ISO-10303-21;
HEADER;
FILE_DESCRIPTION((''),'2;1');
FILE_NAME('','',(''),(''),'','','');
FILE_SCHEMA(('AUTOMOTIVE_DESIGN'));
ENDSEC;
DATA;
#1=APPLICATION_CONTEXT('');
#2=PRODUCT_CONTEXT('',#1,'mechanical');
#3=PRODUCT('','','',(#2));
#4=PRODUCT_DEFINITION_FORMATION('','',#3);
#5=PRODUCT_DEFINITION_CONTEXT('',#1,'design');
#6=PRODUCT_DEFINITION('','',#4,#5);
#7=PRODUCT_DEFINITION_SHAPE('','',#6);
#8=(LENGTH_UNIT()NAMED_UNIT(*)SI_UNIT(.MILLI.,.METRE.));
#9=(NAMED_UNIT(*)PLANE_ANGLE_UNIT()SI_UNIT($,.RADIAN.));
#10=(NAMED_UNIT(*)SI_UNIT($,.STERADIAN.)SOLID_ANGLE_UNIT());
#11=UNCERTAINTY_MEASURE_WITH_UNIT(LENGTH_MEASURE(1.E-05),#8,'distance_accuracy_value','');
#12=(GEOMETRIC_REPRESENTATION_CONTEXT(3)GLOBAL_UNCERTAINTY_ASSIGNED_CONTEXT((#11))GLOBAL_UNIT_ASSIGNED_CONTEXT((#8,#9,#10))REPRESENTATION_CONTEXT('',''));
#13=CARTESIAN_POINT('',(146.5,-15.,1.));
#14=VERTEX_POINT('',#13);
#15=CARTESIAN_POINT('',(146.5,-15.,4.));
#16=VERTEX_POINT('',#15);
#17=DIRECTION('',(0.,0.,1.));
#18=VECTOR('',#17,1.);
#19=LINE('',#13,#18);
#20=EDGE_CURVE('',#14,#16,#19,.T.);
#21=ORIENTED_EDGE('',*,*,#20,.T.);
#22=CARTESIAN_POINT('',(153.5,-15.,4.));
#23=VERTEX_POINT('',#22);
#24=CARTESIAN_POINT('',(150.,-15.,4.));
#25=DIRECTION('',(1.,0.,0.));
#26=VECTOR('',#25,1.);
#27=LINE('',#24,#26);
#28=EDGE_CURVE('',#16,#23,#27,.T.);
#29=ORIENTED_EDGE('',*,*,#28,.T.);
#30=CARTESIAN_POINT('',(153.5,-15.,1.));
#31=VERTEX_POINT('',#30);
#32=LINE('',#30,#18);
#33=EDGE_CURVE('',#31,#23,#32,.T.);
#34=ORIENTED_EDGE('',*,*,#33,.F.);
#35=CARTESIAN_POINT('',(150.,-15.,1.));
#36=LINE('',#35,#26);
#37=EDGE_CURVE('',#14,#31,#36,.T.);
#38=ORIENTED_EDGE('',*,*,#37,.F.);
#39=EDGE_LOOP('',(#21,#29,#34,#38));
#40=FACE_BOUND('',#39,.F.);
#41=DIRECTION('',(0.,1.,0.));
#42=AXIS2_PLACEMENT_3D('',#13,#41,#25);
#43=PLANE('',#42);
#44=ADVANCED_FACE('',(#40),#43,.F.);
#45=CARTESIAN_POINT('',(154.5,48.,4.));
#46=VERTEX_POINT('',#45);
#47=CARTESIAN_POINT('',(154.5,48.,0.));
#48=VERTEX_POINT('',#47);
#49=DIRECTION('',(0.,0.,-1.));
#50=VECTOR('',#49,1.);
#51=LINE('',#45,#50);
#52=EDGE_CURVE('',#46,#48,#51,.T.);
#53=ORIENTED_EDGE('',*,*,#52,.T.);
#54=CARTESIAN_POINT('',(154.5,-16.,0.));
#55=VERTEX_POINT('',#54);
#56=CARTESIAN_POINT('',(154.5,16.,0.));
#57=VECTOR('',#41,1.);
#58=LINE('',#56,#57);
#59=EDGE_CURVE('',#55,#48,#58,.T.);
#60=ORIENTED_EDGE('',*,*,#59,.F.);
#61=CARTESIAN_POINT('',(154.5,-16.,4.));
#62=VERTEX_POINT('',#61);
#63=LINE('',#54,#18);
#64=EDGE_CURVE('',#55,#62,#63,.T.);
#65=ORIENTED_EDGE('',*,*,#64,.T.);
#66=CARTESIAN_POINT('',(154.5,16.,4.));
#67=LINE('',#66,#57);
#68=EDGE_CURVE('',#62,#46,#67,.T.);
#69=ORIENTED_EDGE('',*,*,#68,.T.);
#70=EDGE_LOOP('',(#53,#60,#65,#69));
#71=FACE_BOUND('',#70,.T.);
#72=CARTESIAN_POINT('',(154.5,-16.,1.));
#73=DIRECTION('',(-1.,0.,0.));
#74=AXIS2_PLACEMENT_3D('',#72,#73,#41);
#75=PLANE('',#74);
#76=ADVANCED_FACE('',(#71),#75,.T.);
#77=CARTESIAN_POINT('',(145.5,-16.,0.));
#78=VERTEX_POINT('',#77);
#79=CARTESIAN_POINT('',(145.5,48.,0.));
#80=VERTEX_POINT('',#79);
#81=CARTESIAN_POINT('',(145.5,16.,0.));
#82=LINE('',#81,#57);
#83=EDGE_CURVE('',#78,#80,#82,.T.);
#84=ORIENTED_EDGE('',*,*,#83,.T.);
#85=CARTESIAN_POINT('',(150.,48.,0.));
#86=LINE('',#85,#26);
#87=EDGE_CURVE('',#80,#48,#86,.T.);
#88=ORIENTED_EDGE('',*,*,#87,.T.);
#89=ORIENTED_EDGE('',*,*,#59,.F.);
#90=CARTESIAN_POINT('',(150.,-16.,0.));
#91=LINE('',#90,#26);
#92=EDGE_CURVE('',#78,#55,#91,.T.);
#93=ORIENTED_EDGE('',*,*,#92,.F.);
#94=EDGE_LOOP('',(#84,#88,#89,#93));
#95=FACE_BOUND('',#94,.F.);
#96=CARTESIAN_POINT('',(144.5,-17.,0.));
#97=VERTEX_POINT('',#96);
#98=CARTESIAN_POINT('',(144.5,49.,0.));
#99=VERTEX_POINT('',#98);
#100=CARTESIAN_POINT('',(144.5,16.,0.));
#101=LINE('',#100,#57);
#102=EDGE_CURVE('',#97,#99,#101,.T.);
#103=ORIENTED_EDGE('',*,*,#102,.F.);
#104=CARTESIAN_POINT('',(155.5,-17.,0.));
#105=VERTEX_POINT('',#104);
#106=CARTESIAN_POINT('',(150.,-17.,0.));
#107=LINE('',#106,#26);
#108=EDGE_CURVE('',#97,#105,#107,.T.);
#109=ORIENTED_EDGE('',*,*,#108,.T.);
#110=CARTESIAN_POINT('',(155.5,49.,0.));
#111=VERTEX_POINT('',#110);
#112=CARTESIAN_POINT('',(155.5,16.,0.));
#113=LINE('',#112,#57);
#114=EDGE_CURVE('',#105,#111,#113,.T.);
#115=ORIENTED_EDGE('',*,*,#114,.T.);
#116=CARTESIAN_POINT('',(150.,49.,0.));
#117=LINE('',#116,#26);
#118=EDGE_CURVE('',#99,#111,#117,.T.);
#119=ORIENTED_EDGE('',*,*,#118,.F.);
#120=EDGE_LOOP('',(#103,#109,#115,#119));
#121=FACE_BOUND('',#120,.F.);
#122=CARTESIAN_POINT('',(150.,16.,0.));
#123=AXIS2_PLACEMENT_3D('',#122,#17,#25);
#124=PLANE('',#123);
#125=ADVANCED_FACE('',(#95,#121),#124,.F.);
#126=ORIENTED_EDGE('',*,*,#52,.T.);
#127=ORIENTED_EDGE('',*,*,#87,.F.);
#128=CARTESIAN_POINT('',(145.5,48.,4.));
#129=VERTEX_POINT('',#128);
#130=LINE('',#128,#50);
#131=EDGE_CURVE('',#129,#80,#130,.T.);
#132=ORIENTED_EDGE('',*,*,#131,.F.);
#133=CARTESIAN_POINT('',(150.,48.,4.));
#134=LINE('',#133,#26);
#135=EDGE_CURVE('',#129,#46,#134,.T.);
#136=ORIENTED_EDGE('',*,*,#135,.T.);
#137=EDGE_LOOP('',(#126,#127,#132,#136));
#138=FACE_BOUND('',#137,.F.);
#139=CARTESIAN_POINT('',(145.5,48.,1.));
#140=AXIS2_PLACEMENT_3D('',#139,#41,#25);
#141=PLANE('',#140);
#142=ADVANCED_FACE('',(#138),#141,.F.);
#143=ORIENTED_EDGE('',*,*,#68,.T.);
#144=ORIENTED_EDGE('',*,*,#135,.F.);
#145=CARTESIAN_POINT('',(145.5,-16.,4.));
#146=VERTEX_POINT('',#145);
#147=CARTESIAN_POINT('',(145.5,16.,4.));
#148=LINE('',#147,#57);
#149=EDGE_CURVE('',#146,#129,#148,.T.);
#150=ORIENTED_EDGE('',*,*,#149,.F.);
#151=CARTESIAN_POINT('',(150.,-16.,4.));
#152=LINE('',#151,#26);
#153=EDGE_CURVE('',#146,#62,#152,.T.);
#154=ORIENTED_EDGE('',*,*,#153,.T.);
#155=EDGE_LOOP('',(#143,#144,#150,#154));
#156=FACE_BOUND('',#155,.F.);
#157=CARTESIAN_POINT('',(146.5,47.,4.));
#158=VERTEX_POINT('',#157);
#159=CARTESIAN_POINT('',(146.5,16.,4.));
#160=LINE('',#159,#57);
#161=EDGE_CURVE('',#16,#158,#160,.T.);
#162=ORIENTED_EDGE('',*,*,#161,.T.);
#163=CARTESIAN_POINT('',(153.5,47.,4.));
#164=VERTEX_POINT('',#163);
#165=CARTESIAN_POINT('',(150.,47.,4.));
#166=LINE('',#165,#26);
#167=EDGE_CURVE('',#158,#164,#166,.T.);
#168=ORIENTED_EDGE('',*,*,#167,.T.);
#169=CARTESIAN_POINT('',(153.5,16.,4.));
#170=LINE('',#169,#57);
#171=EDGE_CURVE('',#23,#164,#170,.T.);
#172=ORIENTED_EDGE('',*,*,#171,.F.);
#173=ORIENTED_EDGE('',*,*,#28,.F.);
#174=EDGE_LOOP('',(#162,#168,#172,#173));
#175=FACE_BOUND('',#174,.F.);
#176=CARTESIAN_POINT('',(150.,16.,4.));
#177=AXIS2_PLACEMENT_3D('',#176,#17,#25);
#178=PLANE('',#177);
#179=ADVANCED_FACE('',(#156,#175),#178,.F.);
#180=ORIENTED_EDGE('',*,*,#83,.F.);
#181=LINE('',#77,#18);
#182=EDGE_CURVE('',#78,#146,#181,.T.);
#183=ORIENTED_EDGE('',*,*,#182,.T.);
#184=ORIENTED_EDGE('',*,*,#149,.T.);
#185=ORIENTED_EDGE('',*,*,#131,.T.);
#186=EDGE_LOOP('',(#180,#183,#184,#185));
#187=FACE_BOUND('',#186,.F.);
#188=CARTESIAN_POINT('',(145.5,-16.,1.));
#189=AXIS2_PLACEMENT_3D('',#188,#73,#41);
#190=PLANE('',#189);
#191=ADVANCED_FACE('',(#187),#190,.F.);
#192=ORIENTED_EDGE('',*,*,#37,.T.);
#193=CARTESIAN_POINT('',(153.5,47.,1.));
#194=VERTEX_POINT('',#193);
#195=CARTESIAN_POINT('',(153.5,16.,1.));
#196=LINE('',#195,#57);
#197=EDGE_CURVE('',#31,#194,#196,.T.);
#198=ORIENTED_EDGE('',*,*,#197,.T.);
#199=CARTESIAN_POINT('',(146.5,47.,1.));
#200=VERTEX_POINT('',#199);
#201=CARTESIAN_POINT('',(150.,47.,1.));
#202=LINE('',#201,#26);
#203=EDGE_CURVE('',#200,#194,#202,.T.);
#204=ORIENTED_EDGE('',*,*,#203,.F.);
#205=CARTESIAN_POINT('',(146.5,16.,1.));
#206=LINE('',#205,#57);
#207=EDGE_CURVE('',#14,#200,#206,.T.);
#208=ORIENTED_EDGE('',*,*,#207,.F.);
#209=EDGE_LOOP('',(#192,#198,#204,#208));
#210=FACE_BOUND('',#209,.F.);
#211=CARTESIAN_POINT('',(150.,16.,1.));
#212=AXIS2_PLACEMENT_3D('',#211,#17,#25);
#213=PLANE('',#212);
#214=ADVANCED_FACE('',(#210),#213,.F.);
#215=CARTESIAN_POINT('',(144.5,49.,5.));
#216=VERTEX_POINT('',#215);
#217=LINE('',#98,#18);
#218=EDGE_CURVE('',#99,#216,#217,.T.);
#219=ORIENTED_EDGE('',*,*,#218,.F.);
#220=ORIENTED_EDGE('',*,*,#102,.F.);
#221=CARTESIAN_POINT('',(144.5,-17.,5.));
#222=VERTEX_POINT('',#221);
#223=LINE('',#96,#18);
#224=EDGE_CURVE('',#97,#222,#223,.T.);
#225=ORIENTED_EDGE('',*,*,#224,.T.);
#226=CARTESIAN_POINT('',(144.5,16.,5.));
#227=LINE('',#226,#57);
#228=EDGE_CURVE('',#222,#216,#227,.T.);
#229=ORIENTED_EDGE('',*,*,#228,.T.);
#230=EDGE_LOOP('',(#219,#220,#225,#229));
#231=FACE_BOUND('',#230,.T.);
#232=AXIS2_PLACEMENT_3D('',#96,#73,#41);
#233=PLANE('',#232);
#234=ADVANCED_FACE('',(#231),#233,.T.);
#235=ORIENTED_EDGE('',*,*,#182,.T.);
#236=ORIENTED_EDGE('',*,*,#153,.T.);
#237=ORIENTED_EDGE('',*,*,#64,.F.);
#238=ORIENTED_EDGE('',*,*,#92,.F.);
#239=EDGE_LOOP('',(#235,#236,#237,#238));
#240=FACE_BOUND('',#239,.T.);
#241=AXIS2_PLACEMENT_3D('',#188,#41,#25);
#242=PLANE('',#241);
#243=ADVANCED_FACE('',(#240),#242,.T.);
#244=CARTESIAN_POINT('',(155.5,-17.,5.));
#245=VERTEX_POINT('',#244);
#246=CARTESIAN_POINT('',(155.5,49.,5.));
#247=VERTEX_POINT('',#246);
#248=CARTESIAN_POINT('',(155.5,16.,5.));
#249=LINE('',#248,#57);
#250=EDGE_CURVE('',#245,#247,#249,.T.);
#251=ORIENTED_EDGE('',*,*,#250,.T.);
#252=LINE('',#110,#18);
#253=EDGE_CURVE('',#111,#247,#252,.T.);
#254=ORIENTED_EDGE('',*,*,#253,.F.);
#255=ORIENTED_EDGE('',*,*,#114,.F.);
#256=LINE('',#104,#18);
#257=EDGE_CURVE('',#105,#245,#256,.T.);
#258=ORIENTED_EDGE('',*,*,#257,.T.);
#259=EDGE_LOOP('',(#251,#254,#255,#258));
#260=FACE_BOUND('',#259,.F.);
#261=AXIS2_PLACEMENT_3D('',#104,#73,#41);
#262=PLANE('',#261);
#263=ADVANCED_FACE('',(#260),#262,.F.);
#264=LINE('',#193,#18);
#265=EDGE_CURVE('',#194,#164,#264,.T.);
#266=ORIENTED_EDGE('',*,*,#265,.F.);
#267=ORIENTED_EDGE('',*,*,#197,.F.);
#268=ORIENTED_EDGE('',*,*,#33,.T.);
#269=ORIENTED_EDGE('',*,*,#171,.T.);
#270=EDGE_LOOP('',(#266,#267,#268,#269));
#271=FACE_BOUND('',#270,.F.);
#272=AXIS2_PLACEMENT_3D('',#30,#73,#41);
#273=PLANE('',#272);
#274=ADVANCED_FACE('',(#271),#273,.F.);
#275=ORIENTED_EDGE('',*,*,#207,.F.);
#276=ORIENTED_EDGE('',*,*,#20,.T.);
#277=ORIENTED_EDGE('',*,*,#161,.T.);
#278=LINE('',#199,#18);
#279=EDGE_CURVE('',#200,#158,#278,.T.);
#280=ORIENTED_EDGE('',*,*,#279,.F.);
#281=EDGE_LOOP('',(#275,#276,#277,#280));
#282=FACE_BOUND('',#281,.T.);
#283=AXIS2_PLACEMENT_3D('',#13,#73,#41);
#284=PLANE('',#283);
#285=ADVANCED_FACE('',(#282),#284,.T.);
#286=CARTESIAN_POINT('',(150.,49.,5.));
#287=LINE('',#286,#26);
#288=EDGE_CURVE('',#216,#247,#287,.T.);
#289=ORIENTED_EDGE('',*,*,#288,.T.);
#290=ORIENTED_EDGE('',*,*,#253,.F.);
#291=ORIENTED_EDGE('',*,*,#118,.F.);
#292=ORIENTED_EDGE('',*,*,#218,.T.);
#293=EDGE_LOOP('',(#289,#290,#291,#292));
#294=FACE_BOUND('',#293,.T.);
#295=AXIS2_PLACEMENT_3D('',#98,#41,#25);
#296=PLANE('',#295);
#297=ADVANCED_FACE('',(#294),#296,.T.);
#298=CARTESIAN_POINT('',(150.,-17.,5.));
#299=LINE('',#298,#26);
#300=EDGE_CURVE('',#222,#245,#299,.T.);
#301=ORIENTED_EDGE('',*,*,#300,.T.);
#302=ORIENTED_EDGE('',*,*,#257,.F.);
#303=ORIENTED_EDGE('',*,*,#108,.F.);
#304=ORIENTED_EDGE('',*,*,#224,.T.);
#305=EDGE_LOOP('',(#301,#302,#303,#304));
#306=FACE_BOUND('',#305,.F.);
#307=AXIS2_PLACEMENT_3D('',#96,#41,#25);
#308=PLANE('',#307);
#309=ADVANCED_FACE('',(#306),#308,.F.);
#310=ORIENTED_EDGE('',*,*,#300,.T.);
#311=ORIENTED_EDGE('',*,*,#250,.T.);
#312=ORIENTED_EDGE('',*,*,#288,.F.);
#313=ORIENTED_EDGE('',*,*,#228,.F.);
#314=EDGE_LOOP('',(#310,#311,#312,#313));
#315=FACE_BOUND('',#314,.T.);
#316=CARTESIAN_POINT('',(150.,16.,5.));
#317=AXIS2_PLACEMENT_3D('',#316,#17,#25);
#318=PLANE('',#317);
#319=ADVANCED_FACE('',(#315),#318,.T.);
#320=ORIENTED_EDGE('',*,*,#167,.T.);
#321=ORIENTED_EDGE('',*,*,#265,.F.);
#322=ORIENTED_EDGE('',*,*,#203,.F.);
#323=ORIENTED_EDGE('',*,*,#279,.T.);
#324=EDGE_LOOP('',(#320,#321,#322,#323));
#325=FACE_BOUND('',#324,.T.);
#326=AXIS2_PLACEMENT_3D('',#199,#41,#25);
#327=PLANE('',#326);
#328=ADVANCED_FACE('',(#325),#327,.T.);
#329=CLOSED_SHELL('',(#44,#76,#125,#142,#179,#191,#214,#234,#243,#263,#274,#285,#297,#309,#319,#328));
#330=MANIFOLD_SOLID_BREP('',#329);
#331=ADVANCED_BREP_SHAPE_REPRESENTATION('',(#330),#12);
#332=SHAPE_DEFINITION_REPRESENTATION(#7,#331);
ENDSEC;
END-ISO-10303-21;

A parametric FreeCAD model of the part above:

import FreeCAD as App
import Part
import Sketcher
from FreeCAD import Vector
Q = App.Units.Quantity

doc = App.newDocument("Part")
body = doc.addObject("PartDesign::Body", "Body")

sketch1 = doc.addObject("Sketcher::SketchObject", "Sketch")
body.addObject(sketch1)
sketch1.AttachmentSupport = (doc.XY_Plane, [""])
sketch1.MapMode = "FlatFace"
sketch1.addGeometry([
    Part.LineSegment(Vector(-4, 32, 0), Vector(-4, -32, 0)),
    Part.LineSegment(Vector(-4, -32, 0), Vector(4, -32, 0)),
    Part.LineSegment(Vector(4, -32, 0), Vector(4, 32, 0)),
    Part.LineSegment(Vector(4, 32, 0), Vector(-4, 32, 0)),
], False)
sketch1.addConstraint([
    Sketcher.Constraint("Coincident", 0, 2, 1, 1),
    Sketcher.Constraint("Coincident", 1, 2, 2, 1),
    Sketcher.Constraint("Coincident", 2, 2, 3, 1),
    Sketcher.Constraint("Coincident", 3, 2, 0, 1),
    Sketcher.Constraint("Vertical", 0),
    Sketcher.Constraint("Horizontal", 1),
    Sketcher.Constraint("Vertical", 2),
    Sketcher.Constraint("Horizontal", 3),
    Sketcher.Constraint("Symmetric", 0, 2, 2, 2, -1, 1),
    Sketcher.Constraint("DistanceX", 1, 1, 1, 2, Q("9 mm")),
    Sketcher.Constraint("DistanceY", 0, 2, 0, 1, Q("64 mm")),
])
pad1 = doc.addObject("PartDesign::Pad", "Pad")
body.addObject(pad1)
pad1.Profile = sketch1
pad1.Length = 1

sketch2 = doc.addObject("Sketcher::SketchObject", "Sketch001")
body.addObject(sketch2)
sketch2.AttachmentSupport = (doc.XY_Plane, [""])
sketch2.MapMode = "FlatFace"
sketch2.AttachmentOffset = App.Placement(Vector(0, 0, 1), App.Rotation())
sketch2.addGeometry([
    Part.LineSegment(Vector(-4, 32, 0), Vector(-4, -32, 0)),
    Part.LineSegment(Vector(-4, -32, 0), Vector(4, -32, 0)),
    Part.LineSegment(Vector(4, -32, 0), Vector(4, 32, 0)),
    Part.LineSegment(Vector(4, 32, 0), Vector(-4, 32, 0)),
    Part.LineSegment(Vector(4, -31, 0), Vector(-4, -31, 0)),
    Part.LineSegment(Vector(-4, -31, 0), Vector(-4, 31, 0)),
    Part.LineSegment(Vector(-4, 31, 0), Vector(4, 31, 0)),
    Part.LineSegment(Vector(4, 31, 0), Vector(4, -31, 0)),
], False)
sketch2.addConstraint([
    Sketcher.Constraint("Coincident", 0, 2, 1, 1),
    Sketcher.Constraint("Coincident", 1, 2, 2, 1),
    Sketcher.Constraint("Coincident", 2, 2, 3, 1),
    Sketcher.Constraint("Coincident", 3, 2, 0, 1),
    Sketcher.Constraint("Coincident", 4, 2, 5, 1),
    Sketcher.Constraint("Coincident", 5, 2, 6, 1),
    Sketcher.Constraint("Coincident", 6, 2, 7, 1),
    Sketcher.Constraint("Coincident", 7, 2, 4, 1),
    Sketcher.Constraint("Vertical", 0),
    Sketcher.Constraint("Horizontal", 1),
    Sketcher.Constraint("Vertical", 2),
    Sketcher.Constraint("Horizontal", 3),
    Sketcher.Constraint("Horizontal", 4),
    Sketcher.Constraint("Vertical", 5),
    Sketcher.Constraint("Horizontal", 6),
    Sketcher.Constraint("Vertical", 7),
    Sketcher.Constraint("Symmetric", 0, 2, 2, 2, -1, 1),
    Sketcher.Constraint("Symmetric", 4, 2, 6, 2, -1, 1),
    Sketcher.Constraint("DistanceX", 1, 1, 1, 2, Q("9 mm")),
    Sketcher.Constraint("DistanceX", 4, 2, 4, 1, Q("7 mm")),
    Sketcher.Constraint("DistanceY", 0, 2, 0, 1, Q("64 mm")),
    Sketcher.Constraint("DistanceY", 5, 1, 5, 2, Q("62 mm")),
])
pad2 = doc.addObject("PartDesign::Pad", "Pad001")
body.addObject(pad2)
pad2.Profile = sketch2
pad2.Length = 3
body2 = doc.addObject("PartDesign::Body", "Body001")
doc.recompute()

body.Placement = App.Placement(Vector(150, 35, 0), App.Rotation(Vector(0, 0, 1), 0))
boolean = doc.addObject("PartDesign::Boolean", "Boolean")
body2.addObject(boolean)
boolean.Type = "Fuse"
boolean.addObjects([body])
body3 = doc.addObject("PartDesign::Body", "Body002")

sketch3 = doc.addObject("Sketcher::SketchObject", "Sketch002")
body3.addObject(sketch3)
sketch3.AttachmentSupport = (doc.getObject("XY_Plane002"), [""])
sketch3.MapMode = "FlatFace"
sketch3.addGeometry([
    Part.LineSegment(Vector(144, 68, 0), Vector(144, 2, 0)),
    Part.LineSegment(Vector(144, 2, 0), Vector(156, 2, 0)),
    Part.LineSegment(Vector(156, 2, 0), Vector(156, 68, 0)),
    Part.LineSegment(Vector(156, 68, 0), Vector(144, 68, 0)),
], False)
sketch3.addConstraint([
    Sketcher.Constraint("Coincident", 0, 2, 1, 1),
    Sketcher.Constraint("Coincident", 1, 2, 2, 1),
    Sketcher.Constraint("Coincident", 2, 2, 3, 1),
    Sketcher.Constraint("Coincident", 3, 2, 0, 1),
    Sketcher.Constraint("Vertical", 0),
    Sketcher.Constraint("Horizontal", 1),
    Sketcher.Constraint("Vertical", 2),
    Sketcher.Constraint("Horizontal", 3),
    Sketcher.Constraint("DistanceX", 1, 1, 1, 2, Q("11 mm")),
    Sketcher.Constraint("DistanceY", 0, 2, 0, 1, Q("66 mm")),
    Sketcher.Constraint("DistanceY", -1, 1, 0, 2, Q("2 mm")),
    Sketcher.Constraint("DistanceX", -1, 1, 0, 2, Q("144.5 mm")),
])
pad3 = doc.addObject("PartDesign::Pad", "Pad002")
body3.addObject(pad3)
pad3.Profile = sketch3
pad3.Length = 5
doc.recompute()

boolean2 = doc.addObject("PartDesign::Boolean", "Boolean001")
body3.addObject(boolean2)
boolean2.Type = "Cut"
boolean2.addObjects([body2])
body4 = doc.addObject("PartDesign::Body", "Body003")
doc.recompute()

body3.Placement = App.Placement(Vector(0, -19, 0), App.Rotation(Vector(0, 0, 1), 0))
boolean3 = doc.addObject("PartDesign::Boolean", "Boolean002")
body4.addObject(boolean3)
boolean3.Type = "Fuse"
boolean3.addObjects([body3])

doc.recompute()
